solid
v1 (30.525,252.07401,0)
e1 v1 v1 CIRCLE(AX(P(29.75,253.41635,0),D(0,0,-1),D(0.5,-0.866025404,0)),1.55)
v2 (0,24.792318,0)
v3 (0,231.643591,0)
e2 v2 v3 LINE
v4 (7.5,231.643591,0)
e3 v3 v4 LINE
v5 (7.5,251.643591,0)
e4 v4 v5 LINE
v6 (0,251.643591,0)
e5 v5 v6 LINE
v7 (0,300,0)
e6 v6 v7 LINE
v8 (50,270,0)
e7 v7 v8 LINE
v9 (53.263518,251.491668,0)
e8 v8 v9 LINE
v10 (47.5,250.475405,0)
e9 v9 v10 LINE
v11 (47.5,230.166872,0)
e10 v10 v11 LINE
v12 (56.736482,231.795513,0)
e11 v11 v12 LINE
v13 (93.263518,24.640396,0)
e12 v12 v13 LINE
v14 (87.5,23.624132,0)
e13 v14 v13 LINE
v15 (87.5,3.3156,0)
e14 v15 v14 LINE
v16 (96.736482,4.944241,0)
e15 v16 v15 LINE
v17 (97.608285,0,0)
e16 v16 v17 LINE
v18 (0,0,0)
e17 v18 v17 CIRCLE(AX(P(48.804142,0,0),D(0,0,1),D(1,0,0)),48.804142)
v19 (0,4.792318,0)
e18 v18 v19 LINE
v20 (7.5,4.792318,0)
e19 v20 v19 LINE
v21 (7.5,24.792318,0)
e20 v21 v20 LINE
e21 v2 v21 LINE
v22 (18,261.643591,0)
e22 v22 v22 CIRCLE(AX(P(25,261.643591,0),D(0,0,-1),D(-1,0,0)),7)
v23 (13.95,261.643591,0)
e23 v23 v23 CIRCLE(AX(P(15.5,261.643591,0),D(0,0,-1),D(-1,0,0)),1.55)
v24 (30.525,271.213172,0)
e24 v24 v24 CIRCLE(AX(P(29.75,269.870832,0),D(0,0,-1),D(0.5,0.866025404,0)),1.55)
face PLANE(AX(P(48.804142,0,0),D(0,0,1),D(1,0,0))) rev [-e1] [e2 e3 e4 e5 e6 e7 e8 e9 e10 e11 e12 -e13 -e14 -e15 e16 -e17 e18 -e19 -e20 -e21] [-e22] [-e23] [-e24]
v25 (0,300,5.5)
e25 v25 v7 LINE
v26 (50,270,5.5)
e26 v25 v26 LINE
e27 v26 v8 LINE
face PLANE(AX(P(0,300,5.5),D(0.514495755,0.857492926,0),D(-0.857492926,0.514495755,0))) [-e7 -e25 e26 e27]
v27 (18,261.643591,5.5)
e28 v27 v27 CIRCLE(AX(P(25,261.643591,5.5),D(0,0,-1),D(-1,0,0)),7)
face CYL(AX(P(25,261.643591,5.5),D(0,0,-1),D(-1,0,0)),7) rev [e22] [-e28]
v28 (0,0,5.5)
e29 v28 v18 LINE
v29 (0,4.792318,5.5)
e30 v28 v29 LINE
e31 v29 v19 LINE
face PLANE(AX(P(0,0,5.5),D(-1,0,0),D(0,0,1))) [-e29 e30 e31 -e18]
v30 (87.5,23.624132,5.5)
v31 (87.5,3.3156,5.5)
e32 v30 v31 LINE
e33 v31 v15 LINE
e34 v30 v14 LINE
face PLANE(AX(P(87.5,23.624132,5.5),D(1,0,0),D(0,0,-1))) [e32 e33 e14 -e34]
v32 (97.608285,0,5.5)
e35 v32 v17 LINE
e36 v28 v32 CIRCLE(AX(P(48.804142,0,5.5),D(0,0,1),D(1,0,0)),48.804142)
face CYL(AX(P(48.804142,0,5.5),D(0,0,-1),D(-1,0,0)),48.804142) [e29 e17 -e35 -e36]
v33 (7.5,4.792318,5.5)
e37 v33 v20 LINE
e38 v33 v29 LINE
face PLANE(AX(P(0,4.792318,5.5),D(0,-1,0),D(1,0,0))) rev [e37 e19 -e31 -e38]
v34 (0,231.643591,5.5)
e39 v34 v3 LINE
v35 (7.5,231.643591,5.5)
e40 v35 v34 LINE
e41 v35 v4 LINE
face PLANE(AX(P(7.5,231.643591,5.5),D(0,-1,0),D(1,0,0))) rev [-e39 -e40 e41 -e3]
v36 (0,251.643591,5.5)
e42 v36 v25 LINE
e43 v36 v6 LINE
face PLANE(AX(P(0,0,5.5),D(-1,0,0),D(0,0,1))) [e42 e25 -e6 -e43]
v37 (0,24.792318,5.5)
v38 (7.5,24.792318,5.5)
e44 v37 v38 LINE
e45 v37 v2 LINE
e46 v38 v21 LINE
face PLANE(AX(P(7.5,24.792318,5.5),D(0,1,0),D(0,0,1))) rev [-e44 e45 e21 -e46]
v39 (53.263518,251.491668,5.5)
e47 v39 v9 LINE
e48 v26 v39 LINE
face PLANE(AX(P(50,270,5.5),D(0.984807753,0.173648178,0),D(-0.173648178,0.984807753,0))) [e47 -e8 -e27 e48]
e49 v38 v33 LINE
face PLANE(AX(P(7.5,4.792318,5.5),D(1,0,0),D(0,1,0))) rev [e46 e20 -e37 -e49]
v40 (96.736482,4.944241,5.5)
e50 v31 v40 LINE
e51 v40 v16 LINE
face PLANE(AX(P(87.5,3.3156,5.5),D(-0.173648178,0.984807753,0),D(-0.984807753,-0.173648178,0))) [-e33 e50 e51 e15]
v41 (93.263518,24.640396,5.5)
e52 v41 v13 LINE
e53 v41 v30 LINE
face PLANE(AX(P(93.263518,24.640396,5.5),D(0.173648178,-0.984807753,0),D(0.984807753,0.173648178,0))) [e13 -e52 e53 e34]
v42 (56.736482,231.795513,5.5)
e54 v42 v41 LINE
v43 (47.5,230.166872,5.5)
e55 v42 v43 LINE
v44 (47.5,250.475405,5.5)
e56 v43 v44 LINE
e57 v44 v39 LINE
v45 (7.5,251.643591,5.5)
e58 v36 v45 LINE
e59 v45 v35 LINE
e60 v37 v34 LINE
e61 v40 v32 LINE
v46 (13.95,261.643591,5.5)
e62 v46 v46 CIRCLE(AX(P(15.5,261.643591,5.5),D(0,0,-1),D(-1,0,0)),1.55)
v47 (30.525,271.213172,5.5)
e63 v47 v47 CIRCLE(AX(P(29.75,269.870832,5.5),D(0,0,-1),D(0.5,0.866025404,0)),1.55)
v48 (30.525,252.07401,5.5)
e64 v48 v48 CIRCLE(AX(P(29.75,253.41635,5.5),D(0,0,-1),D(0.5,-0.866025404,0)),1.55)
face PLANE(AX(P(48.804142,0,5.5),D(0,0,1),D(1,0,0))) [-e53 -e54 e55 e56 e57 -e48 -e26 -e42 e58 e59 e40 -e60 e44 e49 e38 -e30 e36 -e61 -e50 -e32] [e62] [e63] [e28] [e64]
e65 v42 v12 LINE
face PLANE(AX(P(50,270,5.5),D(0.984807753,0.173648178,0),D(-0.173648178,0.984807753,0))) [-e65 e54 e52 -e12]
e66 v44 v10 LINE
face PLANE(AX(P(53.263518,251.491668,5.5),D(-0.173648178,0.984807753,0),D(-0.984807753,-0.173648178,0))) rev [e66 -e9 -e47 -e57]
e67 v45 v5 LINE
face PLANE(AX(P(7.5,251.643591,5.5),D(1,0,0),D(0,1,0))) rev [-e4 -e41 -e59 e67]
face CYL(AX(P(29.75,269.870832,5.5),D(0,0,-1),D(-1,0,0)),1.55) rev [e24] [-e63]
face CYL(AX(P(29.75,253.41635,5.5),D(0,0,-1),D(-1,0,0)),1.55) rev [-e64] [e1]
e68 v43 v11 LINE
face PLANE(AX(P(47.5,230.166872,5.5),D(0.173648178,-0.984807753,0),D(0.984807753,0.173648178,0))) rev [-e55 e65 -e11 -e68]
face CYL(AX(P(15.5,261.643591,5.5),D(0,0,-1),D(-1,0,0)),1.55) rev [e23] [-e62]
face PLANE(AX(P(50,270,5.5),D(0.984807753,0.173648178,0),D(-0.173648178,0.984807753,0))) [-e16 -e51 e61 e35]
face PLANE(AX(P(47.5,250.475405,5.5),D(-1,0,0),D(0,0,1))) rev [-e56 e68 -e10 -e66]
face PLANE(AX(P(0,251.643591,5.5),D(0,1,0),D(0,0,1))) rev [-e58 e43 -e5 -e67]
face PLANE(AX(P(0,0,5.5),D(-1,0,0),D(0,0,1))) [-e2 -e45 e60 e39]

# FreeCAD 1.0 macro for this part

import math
import FreeCAD as App
import Part
import Sketcher

V = App.Vector
Q = App.Units.Quantity


def add_polygon(sketch, points):
    """Adds a closed chain of lines whose ends are joined by coincident constraints."""
    first, n = sketch.GeometryCount, len(points)
    for a, b in zip(points, points[1:] + points[:1]):
        sketch.addGeometry(Part.LineSegment(App.Vector(*a, 0), App.Vector(*b, 0)), False)
    for i in range(n):
        sketch.addConstraint(Sketcher.Constraint("Coincident", first + i, 2, first + (i + 1) % n, 1))

doc = App.newDocument("Part")
body = doc.addObject("PartDesign::Body", "Body")

sketch1 = body.newObject("Sketcher::SketchObject", "Sketch")
sketch1.AttachmentSupport = (doc.getObject("XY_Plane"), [""])
sketch1.MapMode = "FlatFace"
sketch1.addGeometry([
    Part.LineSegment(V(0, 300, 0), V(0, 0, 0)),
    Part.ArcOfCircle(Part.Circle(V(49, 0, 0), V(0, 0, 1), 49), math.radians(180), math.radians(360)),
    Part.LineSegment(V(98, 0, 0), V(50, 270, 0)),
    Part.LineSegment(V(50, 270, 0), V(0, 300, 0)),
], False)
sketch1.addConstraint([
    Sketcher.Constraint("Tangent", 0, 2, 1, 1),
    Sketcher.Constraint("Coincident", 1, 2, 2, 1),
    Sketcher.Constraint("Coincident", 2, 2, 3, 1),
    Sketcher.Constraint("Coincident", 3, 2, 0, 1),
    Sketcher.Constraint("Vertical", 0),
    Sketcher.Constraint("Coincident", 0, 2, -1, 1),
    Sketcher.Constraint("PointOnObject", 1, 2, -1),
    Sketcher.Constraint("DistanceY", 0, 2, 0, 1, 300.0),
    Sketcher.Constraint("Angle", 2, Q("100 deg")),
    Sketcher.Constraint("DistanceX", -1, 1, 2, 2, 50.0),
    Sketcher.Constraint("DistanceY", -1, 1, 2, 2, 270.0),
])
pad1 = body.newObject("PartDesign::Pad", "Pad")
pad1.Profile = sketch1
pad1.Length = 5.5

sketch2 = body.newObject("Sketcher::SketchObject", "Sketch001")
sketch2.AttachmentSupport = (doc.getObject("XY_Plane"), [""])
sketch2.MapMode = "FlatFace"
sketch2.addGeometry(Part.Circle(V(25, 262, 0), V(0, 0, 1), 7), False)
sketch2.addConstraint([
    Sketcher.Constraint("Diameter", 0, 14.0),
    Sketcher.Constraint("DistanceX", -1, 1, 0, 3, 25.0),
    Sketcher.Constraint("DistanceY", -1, 1, 0, 3, 261.643591),
])
pocket1 = body.newObject("PartDesign::Pocket", "Pocket")
pocket1.Profile = sketch2
pocket1.Type = "ThroughAll"
pocket1.Reversed = True

sketch3 = body.newObject("Sketcher::SketchObject", "Sketch002")
sketch3.AttachmentSupport = (doc.getObject("XY_Plane"), [""])
sketch3.MapMode = "FlatFace"
sketch3.addGeometry(Part.Circle(V(15.5, 261.6, 0), V(0, 0, 1), 1.6), False)
sketch3.addConstraint([
    Sketcher.Constraint("Diameter", 0, 3.1),
    Sketcher.Constraint("DistanceX", -1, 1, 0, 3, 15.5),
    Sketcher.Constraint("DistanceY", -1, 1, 0, 3, 261.643591),
])
pocket2 = body.newObject("PartDesign::Pocket", "Pocket001")
pocket2.Profile = sketch3
pocket2.Type = "ThroughAll"
pocket2.Reversed = True
doc.recompute()

datumline = body.newObject("PartDesign::Line", "DatumLine")
datumline.Placement = App.Placement(V(25, 261.643591, 0), App.Rotation(V(0, 0, 1), V(0, 0, 1)))
polarpattern = body.newObject("PartDesign::PolarPattern", "PolarPattern")
polarpattern.Originals = [pocket2]
polarpattern.Axis = (datumline, [""])
polarpattern.Angle = 360
polarpattern.Occurrences = 3
body.Tip = polarpattern

sketch4 = body.newObject("Sketcher::SketchObject", "Sketch003")
sketch4.AttachmentSupport = (doc.getObject("XY_Plane"), [""])
sketch4.MapMode = "FlatFace"
add_polygon(sketch4, [(8, 25), (8, 5), (0, 5), (0, 25)])
sketch4.addConstraint([
    Sketcher.Constraint("Vertical", 0),
    Sketcher.Constraint("Horizontal", 1),
    Sketcher.Constraint("Vertical", 2),
    Sketcher.Constraint("Horizontal", 3),
    Sketcher.Constraint("PointOnObject", 1, 2, -2),
    Sketcher.Constraint("DistanceY", 0, 2, 0, 1, 20.0),
    Sketcher.Constraint("DistanceX", 1, 2, 1, 1, 7.5),
    Sketcher.Constraint("DistanceY", -1, 1, 0, 2, 4.792318),
])
pocket3 = body.newObject("PartDesign::Pocket", "Pocket002")
pocket3.Profile = sketch4
pocket3.Type = "ThroughAll"
pocket3.Reversed = True

sketch5 = body.newObject("Sketcher::SketchObject", "Sketch004")
sketch5.AttachmentSupport = (doc.getObject("XY_Plane"), [""])
sketch5.MapMode = "FlatFace"
sketch5.AttachmentOffset = App.Placement(V(0, 0, -5), App.Rotation())
add_polygon(sketch5, [(8, 252), (8, 232), (0, 232), (0, 252)])
sketch5.addConstraint([
    Sketcher.Constraint("Vertical", 0),
    Sketcher.Constraint("Horizontal", 1),
    Sketcher.Constraint("Vertical", 2),
    Sketcher.Constraint("Horizontal", 3),
    Sketcher.Constraint("PointOnObject", 1, 2, -2),
    Sketcher.Constraint("DistanceY", 0, 2, 0, 1, 20.0),
    Sketcher.Constraint("DistanceX", 1, 2, 1, 1, 7.5),
    Sketcher.Constraint("DistanceY", -1, 1, 0, 2, 231.643591),
])
pocket4 = body.newObject("PartDesign::Pocket", "Pocket003")
pocket4.Profile = sketch5
pocket4.Type = "ThroughAll"
pocket4.Reversed = True

sketch6 = body.newObject("Sketcher::SketchObject", "Sketch005")
sketch6.AttachmentSupport = (doc.getObject("XY_Plane"), [""])
sketch6.MapMode = "FlatFace"
sketch6.AttachmentOffset = App.Placement(V(0, 0, -5), App.Rotation())
add_polygon(sketch6, [(93, 25), (97, 5), (88, 3), (88, 24)])
sketch6.addConstraint([
    Sketcher.Constraint("Vertical", 2),
    Sketcher.Constraint("Perpendicular", 0, 1),
    Sketcher.Constraint("Parallel", 1, 3),
    Sketcher.Constraint("Angle", 0, Q("-80 deg")),
    Sketcher.Constraint("Distance", 0, 20.0),
    Sketcher.Constraint("DistanceX", -1, 1, 1, 2, 87.5),
    Sketcher.Constraint("DistanceY", -1, 1, 1, 2, 3.3156),
    Sketcher.Constraint("Distance", 1, 9.378969),
])
pocket5 = body.newObject("PartDesign::Pocket", "Pocket004")
pocket5.Profile = sketch6
pocket5.Type = "ThroughAll"
pocket5.Reversed = True

sketch7 = body.newObject("Sketcher::SketchObject", "Sketch006")
sketch7.AttachmentSupport = (doc.getObject("XY_Plane"), [""])
sketch7.MapMode = "FlatFace"
sketch7.AttachmentOffset = App.Placement(V(0, 0, -5), App.Rotation())
add_polygon(sketch7, [(53, 251), (57, 232), (48, 230), (48, 250)])
sketch7.addConstraint([
    Sketcher.Constraint("Vertical", 2),
    Sketcher.Constraint("Perpendicular", 0, 1),
    Sketcher.Constraint("Parallel", 1, 3),
    Sketcher.Constraint("Angle", 0, Q("-80 deg")),
    Sketcher.Constraint("Distance", 0, 20.0),
    Sketcher.Constraint("DistanceX", -1, 1, 1, 2, 47.5),
    Sketcher.Constraint("Distance", 1, 9.378969),
    Sketcher.Constraint("DistanceY", -1, 1, 3, 2, 251.491668),
])
pocket6 = body.newObject("PartDesign::Pocket", "Pocket005")
pocket6.Profile = sketch7
pocket6.Type = "ThroughAll"
pocket6.Reversed = True

doc.recompute()
